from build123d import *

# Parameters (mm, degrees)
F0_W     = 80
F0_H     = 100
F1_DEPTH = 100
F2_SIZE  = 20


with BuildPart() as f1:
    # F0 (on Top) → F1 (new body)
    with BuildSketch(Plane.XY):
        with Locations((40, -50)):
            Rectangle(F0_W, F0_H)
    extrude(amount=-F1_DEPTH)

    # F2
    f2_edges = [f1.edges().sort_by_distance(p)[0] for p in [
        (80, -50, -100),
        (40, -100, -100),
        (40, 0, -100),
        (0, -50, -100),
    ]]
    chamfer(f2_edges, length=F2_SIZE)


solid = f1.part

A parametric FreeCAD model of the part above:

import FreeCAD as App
import Part
import Sketcher
from FreeCAD import Vector
Q = App.Units.Quantity


def edges_at(feature, points):
    """Names of the edges that pass closest to the given points."""
    edges = feature.Shape.Edges
    near = lambda p: min(range(len(edges)), key=lambda i: edges[i].distToShape(Part.Vertex(*p))[0])
    return sorted({f"Edge{near(p) + 1}" for p in points})


def add_polygon(sketch, points):
    """Adds a closed chain of lines whose ends are joined by coincident constraints."""
    first, n = sketch.GeometryCount, len(points)
    for a, b in zip(points, points[1:] + points[:1]):
        sketch.addGeometry(Part.LineSegment(App.Vector(*a, 0), App.Vector(*b, 0)), False)
    for i in range(n):
        sketch.addConstraint(Sketcher.Constraint("Coincident", first + i, 2, first + (i + 1) % n, 1))

doc = App.newDocument("Part")
params = doc.addObject("Spreadsheet::Sheet", "Params")
for row, (alias, value) in enumerate([
    ("sketch1_width", "80 mm"),
    ("sketch1_height", "100 mm"),
    ("pad1_length", "100 mm"),
    ("chamfer_size", "20 mm"),
], start=1):
    params.set(f"A{row}", alias)
    params.set(f"B{row}", "=" + value)
    params.setAlias(f"B{row}", alias)

body = doc.addObject("PartDesign::Body", "Body")

# Sketch on XY plane
sketch1 = body.newObject("Sketcher::SketchObject", "Sketch")
sketch1.AttachmentSupport = (doc.getObject("XY_Plane"), [""])
sketch1.MapMode = "FlatFace"
add_polygon(sketch1, [(0, 0), (0, -100), (80, -100), (80, 0)])  # lines 0-3
sketch1.addConstraint(Sketcher.Constraint("Vertical", 0))
sketch1.addConstraint(Sketcher.Constraint("Horizontal", 1))
sketch1.addConstraint(Sketcher.Constraint("Vertical", 2))
sketch1.addConstraint(Sketcher.Constraint("Horizontal", 3))
sketch1.addConstraint(Sketcher.Constraint("Coincident", 3, 2, -1, 1))
sketch1.addConstraint(Sketcher.Constraint("DistanceX", 1, 1, 1, 2, Q("80 mm")))
sketch1.addConstraint(Sketcher.Constraint("DistanceY", 0, 2, 0, 1, Q("100 mm")))
sketch1.setExpression("Constraints[9]", "Params.sketch1_width")
sketch1.setExpression("Constraints[10]", "Params.sketch1_height")
pad1 = body.newObject("PartDesign::Pad", "Pad")
pad1.Profile = sketch1
pad1.setExpression("Length", "Params.pad1_length")
pad1.Reversed = True
doc.recompute()

chamfer = body.newObject("PartDesign::Chamfer", "Chamfer")
chamfer.Base = (pad1, edges_at(pad1, [
    (80, -50, -100),
    (40, -100, -100),
    (40, 0, -100),
    (0, -50, -100),
]))
chamfer.setExpression("Size", "Params.chamfer_size")

doc.recompute()
